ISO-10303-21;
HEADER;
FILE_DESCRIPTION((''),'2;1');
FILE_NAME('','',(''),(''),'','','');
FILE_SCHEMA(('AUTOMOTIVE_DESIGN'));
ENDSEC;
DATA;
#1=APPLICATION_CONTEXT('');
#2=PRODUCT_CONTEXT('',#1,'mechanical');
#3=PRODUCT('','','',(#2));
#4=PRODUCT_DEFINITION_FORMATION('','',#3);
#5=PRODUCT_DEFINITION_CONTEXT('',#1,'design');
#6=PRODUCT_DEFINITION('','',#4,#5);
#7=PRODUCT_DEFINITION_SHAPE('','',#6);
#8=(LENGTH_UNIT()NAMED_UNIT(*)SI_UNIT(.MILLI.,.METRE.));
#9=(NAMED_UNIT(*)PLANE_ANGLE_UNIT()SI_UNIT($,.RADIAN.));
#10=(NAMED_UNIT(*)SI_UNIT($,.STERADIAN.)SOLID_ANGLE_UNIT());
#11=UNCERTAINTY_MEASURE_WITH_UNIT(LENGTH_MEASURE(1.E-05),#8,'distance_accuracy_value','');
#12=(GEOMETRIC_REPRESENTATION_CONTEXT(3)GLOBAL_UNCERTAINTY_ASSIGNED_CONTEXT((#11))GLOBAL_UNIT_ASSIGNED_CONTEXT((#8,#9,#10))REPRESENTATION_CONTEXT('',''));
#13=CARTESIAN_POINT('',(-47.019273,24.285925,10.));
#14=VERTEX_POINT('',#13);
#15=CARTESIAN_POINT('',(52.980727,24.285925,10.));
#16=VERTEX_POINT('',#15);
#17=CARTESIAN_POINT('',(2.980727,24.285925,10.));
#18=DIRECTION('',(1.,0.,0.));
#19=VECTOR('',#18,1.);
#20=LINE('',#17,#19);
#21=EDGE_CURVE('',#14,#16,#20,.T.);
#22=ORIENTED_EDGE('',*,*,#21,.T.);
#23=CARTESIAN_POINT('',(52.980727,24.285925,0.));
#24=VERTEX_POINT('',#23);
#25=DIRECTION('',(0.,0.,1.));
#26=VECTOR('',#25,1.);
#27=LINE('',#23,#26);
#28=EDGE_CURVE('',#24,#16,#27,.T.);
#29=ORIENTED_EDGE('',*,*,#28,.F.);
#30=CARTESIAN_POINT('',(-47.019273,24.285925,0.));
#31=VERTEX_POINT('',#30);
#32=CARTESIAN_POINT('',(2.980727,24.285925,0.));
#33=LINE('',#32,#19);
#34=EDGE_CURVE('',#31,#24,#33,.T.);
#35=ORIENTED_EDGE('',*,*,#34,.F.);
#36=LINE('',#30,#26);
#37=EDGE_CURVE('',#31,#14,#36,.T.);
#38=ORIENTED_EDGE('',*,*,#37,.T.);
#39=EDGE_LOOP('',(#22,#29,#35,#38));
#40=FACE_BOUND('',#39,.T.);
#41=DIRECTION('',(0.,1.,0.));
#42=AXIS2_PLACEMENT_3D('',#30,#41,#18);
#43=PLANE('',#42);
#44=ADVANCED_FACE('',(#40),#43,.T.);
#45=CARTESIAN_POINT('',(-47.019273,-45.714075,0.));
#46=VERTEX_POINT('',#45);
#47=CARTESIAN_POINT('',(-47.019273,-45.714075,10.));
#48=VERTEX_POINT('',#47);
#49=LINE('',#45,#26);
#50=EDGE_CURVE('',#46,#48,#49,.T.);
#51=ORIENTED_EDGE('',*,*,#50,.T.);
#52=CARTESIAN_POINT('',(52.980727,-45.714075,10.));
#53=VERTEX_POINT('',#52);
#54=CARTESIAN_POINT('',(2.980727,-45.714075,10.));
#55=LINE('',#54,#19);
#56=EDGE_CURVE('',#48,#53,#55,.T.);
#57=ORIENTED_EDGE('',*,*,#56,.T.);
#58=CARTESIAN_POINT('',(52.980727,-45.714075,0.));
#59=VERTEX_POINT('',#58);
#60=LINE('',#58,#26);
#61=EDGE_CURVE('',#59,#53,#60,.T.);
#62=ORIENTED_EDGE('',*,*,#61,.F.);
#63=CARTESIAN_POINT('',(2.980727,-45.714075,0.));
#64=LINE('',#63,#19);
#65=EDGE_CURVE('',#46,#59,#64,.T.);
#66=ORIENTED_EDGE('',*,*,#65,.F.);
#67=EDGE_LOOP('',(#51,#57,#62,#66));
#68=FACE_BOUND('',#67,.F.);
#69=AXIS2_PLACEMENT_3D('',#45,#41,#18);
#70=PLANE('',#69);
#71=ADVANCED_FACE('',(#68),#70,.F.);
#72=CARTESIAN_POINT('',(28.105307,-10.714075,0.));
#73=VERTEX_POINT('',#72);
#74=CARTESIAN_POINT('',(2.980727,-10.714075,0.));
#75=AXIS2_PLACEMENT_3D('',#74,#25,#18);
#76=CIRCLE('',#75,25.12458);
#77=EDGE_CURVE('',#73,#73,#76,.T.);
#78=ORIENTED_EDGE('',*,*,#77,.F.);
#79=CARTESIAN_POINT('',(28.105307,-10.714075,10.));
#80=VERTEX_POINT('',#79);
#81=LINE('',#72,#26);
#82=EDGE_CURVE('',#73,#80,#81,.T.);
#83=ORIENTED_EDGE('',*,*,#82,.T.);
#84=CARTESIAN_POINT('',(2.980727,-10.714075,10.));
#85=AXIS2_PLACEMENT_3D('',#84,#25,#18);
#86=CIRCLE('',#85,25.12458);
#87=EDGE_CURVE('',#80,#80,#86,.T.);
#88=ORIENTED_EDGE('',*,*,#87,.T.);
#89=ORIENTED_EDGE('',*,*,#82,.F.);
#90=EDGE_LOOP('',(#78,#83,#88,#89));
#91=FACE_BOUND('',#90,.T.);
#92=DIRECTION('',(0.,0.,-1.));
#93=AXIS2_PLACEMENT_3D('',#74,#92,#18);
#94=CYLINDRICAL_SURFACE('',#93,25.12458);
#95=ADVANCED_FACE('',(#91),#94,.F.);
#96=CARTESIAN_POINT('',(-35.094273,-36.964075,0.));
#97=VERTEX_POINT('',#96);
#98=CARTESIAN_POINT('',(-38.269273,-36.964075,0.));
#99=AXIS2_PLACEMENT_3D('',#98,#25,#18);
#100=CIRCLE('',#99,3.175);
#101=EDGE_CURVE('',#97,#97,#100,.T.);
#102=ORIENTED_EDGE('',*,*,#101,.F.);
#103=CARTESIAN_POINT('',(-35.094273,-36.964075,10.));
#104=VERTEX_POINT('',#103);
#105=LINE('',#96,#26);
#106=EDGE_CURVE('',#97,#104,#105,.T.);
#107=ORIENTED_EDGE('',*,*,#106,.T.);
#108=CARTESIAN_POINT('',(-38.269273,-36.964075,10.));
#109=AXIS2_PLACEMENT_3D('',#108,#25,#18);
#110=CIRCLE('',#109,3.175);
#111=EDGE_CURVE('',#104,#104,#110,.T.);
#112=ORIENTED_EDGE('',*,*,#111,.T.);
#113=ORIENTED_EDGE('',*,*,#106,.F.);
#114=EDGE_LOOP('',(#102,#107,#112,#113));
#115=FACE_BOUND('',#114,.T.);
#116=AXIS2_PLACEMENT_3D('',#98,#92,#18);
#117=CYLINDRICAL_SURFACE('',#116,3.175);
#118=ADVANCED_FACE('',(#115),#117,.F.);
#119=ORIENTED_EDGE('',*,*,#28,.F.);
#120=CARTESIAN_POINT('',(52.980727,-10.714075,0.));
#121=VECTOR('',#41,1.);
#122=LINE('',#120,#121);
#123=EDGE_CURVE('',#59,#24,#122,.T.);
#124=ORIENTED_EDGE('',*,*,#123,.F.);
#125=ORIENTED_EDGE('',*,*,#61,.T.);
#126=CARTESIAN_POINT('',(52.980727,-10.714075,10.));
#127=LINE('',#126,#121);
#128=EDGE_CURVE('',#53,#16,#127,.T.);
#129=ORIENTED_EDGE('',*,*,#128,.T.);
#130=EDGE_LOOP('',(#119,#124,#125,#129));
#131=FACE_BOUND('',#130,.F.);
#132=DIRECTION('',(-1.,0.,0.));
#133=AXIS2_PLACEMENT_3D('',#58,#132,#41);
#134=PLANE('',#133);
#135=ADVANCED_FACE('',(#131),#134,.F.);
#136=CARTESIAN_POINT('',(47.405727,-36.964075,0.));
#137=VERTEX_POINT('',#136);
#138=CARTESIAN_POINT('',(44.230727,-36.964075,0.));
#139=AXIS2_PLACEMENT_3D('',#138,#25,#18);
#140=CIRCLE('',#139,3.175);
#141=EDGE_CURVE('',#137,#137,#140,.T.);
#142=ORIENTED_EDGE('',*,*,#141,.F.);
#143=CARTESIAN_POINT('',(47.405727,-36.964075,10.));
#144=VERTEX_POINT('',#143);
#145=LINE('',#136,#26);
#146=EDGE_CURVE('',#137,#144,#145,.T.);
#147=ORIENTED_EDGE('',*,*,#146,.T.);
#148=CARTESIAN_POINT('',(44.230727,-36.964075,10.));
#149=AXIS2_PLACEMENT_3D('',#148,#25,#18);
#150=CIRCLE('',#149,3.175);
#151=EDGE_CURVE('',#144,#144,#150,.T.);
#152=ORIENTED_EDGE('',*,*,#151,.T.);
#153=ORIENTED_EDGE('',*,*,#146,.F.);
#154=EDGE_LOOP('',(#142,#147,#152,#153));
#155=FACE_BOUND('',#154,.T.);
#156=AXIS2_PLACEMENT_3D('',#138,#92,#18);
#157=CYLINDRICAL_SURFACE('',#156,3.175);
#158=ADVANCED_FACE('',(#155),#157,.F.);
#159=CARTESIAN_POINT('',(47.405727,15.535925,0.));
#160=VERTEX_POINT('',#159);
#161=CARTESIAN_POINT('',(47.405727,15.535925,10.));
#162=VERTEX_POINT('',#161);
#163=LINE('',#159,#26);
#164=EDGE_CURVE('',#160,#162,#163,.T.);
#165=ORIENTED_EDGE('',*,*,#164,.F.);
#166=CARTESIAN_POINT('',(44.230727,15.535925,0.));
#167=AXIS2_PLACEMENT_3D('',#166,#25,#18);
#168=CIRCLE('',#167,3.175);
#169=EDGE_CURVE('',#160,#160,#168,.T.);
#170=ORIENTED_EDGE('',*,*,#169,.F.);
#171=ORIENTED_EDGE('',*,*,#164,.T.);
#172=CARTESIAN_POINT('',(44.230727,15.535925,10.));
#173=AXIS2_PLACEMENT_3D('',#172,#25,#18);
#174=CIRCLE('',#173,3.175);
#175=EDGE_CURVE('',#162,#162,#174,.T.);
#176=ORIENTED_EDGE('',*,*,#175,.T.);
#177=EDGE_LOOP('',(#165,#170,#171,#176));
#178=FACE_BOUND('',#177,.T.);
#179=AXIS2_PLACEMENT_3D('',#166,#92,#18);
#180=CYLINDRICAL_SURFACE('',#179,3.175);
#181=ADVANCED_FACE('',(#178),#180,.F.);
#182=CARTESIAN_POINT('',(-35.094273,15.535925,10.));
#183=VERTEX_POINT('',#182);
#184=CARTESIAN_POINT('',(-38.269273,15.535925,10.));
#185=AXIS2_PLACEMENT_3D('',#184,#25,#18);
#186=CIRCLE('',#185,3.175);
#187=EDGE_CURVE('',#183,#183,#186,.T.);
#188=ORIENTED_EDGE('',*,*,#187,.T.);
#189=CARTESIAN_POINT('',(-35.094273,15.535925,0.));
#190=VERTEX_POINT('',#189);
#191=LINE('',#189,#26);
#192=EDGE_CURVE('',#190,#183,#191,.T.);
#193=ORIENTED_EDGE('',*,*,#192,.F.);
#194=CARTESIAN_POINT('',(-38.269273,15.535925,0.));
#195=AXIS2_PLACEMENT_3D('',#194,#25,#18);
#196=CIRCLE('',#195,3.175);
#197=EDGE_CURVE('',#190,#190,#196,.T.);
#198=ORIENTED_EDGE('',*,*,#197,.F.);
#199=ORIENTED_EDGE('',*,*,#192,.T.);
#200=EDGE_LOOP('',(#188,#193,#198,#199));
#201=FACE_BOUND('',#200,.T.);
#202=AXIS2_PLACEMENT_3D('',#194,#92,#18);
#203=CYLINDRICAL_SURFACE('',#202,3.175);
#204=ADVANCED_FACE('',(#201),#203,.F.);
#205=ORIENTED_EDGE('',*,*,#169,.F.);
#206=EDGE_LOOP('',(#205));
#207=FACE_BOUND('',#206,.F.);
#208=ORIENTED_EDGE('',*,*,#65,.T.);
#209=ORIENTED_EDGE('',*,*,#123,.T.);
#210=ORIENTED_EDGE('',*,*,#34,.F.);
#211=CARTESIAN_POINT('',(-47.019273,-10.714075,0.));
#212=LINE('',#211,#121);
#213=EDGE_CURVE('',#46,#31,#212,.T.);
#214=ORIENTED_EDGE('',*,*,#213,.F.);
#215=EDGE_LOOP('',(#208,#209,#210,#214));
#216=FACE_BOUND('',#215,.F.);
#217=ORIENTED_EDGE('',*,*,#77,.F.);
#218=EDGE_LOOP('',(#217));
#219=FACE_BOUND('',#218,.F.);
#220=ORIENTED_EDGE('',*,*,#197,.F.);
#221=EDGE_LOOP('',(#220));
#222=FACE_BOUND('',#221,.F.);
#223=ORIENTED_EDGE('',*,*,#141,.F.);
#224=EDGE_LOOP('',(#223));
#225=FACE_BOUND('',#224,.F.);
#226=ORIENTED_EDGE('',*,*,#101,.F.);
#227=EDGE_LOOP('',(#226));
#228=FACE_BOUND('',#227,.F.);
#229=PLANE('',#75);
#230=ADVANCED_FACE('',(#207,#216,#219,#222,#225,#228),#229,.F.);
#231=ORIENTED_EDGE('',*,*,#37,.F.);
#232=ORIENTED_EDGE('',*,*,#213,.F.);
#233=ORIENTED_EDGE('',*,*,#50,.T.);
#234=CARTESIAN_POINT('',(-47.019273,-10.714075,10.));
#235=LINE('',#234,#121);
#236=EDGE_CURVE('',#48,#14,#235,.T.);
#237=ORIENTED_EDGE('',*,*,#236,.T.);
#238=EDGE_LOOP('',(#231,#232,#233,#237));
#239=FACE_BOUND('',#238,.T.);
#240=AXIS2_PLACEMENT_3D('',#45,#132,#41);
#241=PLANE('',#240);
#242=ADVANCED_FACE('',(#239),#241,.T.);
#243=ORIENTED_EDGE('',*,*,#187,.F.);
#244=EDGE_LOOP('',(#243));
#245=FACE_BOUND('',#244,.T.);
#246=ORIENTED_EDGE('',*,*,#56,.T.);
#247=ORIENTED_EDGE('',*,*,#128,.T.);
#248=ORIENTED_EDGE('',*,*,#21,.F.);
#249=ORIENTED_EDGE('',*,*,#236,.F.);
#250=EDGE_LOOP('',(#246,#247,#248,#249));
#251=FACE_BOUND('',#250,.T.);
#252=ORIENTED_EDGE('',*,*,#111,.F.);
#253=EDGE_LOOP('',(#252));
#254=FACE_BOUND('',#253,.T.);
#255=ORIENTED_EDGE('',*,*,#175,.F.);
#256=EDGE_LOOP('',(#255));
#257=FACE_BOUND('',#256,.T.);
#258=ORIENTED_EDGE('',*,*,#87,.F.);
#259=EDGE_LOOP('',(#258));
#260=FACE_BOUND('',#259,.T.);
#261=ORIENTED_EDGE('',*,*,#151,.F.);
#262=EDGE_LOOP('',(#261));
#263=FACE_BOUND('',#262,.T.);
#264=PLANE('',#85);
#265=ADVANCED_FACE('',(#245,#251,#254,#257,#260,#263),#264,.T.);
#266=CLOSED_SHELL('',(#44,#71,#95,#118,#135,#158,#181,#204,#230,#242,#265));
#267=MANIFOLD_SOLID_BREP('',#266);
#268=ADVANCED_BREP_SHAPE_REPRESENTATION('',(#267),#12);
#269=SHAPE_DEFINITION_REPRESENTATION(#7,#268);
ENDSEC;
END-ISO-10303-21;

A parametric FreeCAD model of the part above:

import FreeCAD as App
import Part
import Sketcher
from FreeCAD import Vector

doc = App.newDocument("Part")
body = doc.addObject("PartDesign::Body", "Body")

# Sketch on XY plane
sketch1 = body.newObject("Sketcher::SketchObject", "Sketch")
sketch1.AttachmentSupport = (doc.getObject("XY_Plane"), [""])
sketch1.MapMode = "FlatFace"
sketch1.addGeometry([
    Part.LineSegment(Vector(-47.019273, 24.285925, 0), Vector(-47.019273, -45.714075, 0)),  # 0
    Part.LineSegment(Vector(-47.019273, -45.714075, 0), Vector(52.980727, -45.714075, 0)),  # 1
    Part.LineSegment(Vector(52.980727, -45.714075, 0), Vector(52.980727, 24.285925, 0)),  # 2
    Part.LineSegment(Vector(52.980727, 24.285925, 0), Vector(-47.019273, 24.285925, 0)),  # 3
    Part.Circle(Vector(-38.269273, -36.964075, 0), Vector(0, 0, 1), 3.175),  # 4
    Part.Circle(Vector(44.230727, -36.964075, 0), Vector(0, 0, 1), 3.175),  # 5
    Part.Circle(Vector(2.980727, -10.714075, 0), Vector(0, 0, 1), 25.12458),  # 6
    Part.Circle(Vector(-38.269273, 15.535925, 0), Vector(0, 0, 1), 3.175),  # 7
    Part.Circle(Vector(44.230727, 15.535925, 0), Vector(0, 0, 1), 3.175),  # 8
], False)
sketch1.addConstraint([
    Sketcher.Constraint("Coincident", 0, 2, 1, 1),
    Sketcher.Constraint("Coincident", 1, 2, 2, 1),
    Sketcher.Constraint("Coincident", 2, 2, 3, 1),
    Sketcher.Constraint("Coincident", 3, 2, 0, 1),
    Sketcher.Constraint("Vertical", 0),
    Sketcher.Constraint("Horizontal", 1),
    Sketcher.Constraint("Vertical", 2),
    Sketcher.Constraint("Horizontal", 3),
    Sketcher.Constraint("Equal", 4, 5),
    Sketcher.Constraint("Equal", 5, 7),
    Sketcher.Constraint("Equal", 7, 8),
    Sketcher.Constraint("Horizontal", 4, 3, 5, 3),
    Sketcher.Constraint("Horizontal", 7, 3, 8, 3),
    Sketcher.Constraint("Vertical", 4, 3, 7, 3),
    Sketcher.Constraint("Vertical", 5, 3, 8, 3),
    Sketcher.Constraint("Diameter", 4, 6.35),
    Sketcher.Constraint("DistanceX", 1, 1, 1, 2, 100.0),
    Sketcher.Constraint("DistanceY", 0, 2, 0, 1, 70.0),
    Sketcher.Constraint("DistanceX", 0, 2, 6, 3, 50.0),
    Sketcher.Constraint("DistanceY", 0, 2, 6, 3, 35.0),
    Sketcher.Constraint("DistanceX", 4, 3, 5, 3, 82.5),
    Sketcher.Constraint("DistanceY", 4, 3, 7, 3, 52.5),
    Sketcher.Constraint("Diameter", 6, 50.24916),
    Sketcher.Constraint("DistanceX", 4, 3, 6, 3, 41.25),
    Sketcher.Constraint("DistanceY", 4, 3, 6, 3, 26.25),
    Sketcher.Constraint("DistanceX", 4, 3, -1, 1, 38.269273),
    Sketcher.Constraint("DistanceY", 4, 3, -1, 1, 36.964075),
])
pad1 = body.newObject("PartDesign::Pad", "Pad")
pad1.Profile = sketch1
pad1.Length = 10

doc.recompute()
